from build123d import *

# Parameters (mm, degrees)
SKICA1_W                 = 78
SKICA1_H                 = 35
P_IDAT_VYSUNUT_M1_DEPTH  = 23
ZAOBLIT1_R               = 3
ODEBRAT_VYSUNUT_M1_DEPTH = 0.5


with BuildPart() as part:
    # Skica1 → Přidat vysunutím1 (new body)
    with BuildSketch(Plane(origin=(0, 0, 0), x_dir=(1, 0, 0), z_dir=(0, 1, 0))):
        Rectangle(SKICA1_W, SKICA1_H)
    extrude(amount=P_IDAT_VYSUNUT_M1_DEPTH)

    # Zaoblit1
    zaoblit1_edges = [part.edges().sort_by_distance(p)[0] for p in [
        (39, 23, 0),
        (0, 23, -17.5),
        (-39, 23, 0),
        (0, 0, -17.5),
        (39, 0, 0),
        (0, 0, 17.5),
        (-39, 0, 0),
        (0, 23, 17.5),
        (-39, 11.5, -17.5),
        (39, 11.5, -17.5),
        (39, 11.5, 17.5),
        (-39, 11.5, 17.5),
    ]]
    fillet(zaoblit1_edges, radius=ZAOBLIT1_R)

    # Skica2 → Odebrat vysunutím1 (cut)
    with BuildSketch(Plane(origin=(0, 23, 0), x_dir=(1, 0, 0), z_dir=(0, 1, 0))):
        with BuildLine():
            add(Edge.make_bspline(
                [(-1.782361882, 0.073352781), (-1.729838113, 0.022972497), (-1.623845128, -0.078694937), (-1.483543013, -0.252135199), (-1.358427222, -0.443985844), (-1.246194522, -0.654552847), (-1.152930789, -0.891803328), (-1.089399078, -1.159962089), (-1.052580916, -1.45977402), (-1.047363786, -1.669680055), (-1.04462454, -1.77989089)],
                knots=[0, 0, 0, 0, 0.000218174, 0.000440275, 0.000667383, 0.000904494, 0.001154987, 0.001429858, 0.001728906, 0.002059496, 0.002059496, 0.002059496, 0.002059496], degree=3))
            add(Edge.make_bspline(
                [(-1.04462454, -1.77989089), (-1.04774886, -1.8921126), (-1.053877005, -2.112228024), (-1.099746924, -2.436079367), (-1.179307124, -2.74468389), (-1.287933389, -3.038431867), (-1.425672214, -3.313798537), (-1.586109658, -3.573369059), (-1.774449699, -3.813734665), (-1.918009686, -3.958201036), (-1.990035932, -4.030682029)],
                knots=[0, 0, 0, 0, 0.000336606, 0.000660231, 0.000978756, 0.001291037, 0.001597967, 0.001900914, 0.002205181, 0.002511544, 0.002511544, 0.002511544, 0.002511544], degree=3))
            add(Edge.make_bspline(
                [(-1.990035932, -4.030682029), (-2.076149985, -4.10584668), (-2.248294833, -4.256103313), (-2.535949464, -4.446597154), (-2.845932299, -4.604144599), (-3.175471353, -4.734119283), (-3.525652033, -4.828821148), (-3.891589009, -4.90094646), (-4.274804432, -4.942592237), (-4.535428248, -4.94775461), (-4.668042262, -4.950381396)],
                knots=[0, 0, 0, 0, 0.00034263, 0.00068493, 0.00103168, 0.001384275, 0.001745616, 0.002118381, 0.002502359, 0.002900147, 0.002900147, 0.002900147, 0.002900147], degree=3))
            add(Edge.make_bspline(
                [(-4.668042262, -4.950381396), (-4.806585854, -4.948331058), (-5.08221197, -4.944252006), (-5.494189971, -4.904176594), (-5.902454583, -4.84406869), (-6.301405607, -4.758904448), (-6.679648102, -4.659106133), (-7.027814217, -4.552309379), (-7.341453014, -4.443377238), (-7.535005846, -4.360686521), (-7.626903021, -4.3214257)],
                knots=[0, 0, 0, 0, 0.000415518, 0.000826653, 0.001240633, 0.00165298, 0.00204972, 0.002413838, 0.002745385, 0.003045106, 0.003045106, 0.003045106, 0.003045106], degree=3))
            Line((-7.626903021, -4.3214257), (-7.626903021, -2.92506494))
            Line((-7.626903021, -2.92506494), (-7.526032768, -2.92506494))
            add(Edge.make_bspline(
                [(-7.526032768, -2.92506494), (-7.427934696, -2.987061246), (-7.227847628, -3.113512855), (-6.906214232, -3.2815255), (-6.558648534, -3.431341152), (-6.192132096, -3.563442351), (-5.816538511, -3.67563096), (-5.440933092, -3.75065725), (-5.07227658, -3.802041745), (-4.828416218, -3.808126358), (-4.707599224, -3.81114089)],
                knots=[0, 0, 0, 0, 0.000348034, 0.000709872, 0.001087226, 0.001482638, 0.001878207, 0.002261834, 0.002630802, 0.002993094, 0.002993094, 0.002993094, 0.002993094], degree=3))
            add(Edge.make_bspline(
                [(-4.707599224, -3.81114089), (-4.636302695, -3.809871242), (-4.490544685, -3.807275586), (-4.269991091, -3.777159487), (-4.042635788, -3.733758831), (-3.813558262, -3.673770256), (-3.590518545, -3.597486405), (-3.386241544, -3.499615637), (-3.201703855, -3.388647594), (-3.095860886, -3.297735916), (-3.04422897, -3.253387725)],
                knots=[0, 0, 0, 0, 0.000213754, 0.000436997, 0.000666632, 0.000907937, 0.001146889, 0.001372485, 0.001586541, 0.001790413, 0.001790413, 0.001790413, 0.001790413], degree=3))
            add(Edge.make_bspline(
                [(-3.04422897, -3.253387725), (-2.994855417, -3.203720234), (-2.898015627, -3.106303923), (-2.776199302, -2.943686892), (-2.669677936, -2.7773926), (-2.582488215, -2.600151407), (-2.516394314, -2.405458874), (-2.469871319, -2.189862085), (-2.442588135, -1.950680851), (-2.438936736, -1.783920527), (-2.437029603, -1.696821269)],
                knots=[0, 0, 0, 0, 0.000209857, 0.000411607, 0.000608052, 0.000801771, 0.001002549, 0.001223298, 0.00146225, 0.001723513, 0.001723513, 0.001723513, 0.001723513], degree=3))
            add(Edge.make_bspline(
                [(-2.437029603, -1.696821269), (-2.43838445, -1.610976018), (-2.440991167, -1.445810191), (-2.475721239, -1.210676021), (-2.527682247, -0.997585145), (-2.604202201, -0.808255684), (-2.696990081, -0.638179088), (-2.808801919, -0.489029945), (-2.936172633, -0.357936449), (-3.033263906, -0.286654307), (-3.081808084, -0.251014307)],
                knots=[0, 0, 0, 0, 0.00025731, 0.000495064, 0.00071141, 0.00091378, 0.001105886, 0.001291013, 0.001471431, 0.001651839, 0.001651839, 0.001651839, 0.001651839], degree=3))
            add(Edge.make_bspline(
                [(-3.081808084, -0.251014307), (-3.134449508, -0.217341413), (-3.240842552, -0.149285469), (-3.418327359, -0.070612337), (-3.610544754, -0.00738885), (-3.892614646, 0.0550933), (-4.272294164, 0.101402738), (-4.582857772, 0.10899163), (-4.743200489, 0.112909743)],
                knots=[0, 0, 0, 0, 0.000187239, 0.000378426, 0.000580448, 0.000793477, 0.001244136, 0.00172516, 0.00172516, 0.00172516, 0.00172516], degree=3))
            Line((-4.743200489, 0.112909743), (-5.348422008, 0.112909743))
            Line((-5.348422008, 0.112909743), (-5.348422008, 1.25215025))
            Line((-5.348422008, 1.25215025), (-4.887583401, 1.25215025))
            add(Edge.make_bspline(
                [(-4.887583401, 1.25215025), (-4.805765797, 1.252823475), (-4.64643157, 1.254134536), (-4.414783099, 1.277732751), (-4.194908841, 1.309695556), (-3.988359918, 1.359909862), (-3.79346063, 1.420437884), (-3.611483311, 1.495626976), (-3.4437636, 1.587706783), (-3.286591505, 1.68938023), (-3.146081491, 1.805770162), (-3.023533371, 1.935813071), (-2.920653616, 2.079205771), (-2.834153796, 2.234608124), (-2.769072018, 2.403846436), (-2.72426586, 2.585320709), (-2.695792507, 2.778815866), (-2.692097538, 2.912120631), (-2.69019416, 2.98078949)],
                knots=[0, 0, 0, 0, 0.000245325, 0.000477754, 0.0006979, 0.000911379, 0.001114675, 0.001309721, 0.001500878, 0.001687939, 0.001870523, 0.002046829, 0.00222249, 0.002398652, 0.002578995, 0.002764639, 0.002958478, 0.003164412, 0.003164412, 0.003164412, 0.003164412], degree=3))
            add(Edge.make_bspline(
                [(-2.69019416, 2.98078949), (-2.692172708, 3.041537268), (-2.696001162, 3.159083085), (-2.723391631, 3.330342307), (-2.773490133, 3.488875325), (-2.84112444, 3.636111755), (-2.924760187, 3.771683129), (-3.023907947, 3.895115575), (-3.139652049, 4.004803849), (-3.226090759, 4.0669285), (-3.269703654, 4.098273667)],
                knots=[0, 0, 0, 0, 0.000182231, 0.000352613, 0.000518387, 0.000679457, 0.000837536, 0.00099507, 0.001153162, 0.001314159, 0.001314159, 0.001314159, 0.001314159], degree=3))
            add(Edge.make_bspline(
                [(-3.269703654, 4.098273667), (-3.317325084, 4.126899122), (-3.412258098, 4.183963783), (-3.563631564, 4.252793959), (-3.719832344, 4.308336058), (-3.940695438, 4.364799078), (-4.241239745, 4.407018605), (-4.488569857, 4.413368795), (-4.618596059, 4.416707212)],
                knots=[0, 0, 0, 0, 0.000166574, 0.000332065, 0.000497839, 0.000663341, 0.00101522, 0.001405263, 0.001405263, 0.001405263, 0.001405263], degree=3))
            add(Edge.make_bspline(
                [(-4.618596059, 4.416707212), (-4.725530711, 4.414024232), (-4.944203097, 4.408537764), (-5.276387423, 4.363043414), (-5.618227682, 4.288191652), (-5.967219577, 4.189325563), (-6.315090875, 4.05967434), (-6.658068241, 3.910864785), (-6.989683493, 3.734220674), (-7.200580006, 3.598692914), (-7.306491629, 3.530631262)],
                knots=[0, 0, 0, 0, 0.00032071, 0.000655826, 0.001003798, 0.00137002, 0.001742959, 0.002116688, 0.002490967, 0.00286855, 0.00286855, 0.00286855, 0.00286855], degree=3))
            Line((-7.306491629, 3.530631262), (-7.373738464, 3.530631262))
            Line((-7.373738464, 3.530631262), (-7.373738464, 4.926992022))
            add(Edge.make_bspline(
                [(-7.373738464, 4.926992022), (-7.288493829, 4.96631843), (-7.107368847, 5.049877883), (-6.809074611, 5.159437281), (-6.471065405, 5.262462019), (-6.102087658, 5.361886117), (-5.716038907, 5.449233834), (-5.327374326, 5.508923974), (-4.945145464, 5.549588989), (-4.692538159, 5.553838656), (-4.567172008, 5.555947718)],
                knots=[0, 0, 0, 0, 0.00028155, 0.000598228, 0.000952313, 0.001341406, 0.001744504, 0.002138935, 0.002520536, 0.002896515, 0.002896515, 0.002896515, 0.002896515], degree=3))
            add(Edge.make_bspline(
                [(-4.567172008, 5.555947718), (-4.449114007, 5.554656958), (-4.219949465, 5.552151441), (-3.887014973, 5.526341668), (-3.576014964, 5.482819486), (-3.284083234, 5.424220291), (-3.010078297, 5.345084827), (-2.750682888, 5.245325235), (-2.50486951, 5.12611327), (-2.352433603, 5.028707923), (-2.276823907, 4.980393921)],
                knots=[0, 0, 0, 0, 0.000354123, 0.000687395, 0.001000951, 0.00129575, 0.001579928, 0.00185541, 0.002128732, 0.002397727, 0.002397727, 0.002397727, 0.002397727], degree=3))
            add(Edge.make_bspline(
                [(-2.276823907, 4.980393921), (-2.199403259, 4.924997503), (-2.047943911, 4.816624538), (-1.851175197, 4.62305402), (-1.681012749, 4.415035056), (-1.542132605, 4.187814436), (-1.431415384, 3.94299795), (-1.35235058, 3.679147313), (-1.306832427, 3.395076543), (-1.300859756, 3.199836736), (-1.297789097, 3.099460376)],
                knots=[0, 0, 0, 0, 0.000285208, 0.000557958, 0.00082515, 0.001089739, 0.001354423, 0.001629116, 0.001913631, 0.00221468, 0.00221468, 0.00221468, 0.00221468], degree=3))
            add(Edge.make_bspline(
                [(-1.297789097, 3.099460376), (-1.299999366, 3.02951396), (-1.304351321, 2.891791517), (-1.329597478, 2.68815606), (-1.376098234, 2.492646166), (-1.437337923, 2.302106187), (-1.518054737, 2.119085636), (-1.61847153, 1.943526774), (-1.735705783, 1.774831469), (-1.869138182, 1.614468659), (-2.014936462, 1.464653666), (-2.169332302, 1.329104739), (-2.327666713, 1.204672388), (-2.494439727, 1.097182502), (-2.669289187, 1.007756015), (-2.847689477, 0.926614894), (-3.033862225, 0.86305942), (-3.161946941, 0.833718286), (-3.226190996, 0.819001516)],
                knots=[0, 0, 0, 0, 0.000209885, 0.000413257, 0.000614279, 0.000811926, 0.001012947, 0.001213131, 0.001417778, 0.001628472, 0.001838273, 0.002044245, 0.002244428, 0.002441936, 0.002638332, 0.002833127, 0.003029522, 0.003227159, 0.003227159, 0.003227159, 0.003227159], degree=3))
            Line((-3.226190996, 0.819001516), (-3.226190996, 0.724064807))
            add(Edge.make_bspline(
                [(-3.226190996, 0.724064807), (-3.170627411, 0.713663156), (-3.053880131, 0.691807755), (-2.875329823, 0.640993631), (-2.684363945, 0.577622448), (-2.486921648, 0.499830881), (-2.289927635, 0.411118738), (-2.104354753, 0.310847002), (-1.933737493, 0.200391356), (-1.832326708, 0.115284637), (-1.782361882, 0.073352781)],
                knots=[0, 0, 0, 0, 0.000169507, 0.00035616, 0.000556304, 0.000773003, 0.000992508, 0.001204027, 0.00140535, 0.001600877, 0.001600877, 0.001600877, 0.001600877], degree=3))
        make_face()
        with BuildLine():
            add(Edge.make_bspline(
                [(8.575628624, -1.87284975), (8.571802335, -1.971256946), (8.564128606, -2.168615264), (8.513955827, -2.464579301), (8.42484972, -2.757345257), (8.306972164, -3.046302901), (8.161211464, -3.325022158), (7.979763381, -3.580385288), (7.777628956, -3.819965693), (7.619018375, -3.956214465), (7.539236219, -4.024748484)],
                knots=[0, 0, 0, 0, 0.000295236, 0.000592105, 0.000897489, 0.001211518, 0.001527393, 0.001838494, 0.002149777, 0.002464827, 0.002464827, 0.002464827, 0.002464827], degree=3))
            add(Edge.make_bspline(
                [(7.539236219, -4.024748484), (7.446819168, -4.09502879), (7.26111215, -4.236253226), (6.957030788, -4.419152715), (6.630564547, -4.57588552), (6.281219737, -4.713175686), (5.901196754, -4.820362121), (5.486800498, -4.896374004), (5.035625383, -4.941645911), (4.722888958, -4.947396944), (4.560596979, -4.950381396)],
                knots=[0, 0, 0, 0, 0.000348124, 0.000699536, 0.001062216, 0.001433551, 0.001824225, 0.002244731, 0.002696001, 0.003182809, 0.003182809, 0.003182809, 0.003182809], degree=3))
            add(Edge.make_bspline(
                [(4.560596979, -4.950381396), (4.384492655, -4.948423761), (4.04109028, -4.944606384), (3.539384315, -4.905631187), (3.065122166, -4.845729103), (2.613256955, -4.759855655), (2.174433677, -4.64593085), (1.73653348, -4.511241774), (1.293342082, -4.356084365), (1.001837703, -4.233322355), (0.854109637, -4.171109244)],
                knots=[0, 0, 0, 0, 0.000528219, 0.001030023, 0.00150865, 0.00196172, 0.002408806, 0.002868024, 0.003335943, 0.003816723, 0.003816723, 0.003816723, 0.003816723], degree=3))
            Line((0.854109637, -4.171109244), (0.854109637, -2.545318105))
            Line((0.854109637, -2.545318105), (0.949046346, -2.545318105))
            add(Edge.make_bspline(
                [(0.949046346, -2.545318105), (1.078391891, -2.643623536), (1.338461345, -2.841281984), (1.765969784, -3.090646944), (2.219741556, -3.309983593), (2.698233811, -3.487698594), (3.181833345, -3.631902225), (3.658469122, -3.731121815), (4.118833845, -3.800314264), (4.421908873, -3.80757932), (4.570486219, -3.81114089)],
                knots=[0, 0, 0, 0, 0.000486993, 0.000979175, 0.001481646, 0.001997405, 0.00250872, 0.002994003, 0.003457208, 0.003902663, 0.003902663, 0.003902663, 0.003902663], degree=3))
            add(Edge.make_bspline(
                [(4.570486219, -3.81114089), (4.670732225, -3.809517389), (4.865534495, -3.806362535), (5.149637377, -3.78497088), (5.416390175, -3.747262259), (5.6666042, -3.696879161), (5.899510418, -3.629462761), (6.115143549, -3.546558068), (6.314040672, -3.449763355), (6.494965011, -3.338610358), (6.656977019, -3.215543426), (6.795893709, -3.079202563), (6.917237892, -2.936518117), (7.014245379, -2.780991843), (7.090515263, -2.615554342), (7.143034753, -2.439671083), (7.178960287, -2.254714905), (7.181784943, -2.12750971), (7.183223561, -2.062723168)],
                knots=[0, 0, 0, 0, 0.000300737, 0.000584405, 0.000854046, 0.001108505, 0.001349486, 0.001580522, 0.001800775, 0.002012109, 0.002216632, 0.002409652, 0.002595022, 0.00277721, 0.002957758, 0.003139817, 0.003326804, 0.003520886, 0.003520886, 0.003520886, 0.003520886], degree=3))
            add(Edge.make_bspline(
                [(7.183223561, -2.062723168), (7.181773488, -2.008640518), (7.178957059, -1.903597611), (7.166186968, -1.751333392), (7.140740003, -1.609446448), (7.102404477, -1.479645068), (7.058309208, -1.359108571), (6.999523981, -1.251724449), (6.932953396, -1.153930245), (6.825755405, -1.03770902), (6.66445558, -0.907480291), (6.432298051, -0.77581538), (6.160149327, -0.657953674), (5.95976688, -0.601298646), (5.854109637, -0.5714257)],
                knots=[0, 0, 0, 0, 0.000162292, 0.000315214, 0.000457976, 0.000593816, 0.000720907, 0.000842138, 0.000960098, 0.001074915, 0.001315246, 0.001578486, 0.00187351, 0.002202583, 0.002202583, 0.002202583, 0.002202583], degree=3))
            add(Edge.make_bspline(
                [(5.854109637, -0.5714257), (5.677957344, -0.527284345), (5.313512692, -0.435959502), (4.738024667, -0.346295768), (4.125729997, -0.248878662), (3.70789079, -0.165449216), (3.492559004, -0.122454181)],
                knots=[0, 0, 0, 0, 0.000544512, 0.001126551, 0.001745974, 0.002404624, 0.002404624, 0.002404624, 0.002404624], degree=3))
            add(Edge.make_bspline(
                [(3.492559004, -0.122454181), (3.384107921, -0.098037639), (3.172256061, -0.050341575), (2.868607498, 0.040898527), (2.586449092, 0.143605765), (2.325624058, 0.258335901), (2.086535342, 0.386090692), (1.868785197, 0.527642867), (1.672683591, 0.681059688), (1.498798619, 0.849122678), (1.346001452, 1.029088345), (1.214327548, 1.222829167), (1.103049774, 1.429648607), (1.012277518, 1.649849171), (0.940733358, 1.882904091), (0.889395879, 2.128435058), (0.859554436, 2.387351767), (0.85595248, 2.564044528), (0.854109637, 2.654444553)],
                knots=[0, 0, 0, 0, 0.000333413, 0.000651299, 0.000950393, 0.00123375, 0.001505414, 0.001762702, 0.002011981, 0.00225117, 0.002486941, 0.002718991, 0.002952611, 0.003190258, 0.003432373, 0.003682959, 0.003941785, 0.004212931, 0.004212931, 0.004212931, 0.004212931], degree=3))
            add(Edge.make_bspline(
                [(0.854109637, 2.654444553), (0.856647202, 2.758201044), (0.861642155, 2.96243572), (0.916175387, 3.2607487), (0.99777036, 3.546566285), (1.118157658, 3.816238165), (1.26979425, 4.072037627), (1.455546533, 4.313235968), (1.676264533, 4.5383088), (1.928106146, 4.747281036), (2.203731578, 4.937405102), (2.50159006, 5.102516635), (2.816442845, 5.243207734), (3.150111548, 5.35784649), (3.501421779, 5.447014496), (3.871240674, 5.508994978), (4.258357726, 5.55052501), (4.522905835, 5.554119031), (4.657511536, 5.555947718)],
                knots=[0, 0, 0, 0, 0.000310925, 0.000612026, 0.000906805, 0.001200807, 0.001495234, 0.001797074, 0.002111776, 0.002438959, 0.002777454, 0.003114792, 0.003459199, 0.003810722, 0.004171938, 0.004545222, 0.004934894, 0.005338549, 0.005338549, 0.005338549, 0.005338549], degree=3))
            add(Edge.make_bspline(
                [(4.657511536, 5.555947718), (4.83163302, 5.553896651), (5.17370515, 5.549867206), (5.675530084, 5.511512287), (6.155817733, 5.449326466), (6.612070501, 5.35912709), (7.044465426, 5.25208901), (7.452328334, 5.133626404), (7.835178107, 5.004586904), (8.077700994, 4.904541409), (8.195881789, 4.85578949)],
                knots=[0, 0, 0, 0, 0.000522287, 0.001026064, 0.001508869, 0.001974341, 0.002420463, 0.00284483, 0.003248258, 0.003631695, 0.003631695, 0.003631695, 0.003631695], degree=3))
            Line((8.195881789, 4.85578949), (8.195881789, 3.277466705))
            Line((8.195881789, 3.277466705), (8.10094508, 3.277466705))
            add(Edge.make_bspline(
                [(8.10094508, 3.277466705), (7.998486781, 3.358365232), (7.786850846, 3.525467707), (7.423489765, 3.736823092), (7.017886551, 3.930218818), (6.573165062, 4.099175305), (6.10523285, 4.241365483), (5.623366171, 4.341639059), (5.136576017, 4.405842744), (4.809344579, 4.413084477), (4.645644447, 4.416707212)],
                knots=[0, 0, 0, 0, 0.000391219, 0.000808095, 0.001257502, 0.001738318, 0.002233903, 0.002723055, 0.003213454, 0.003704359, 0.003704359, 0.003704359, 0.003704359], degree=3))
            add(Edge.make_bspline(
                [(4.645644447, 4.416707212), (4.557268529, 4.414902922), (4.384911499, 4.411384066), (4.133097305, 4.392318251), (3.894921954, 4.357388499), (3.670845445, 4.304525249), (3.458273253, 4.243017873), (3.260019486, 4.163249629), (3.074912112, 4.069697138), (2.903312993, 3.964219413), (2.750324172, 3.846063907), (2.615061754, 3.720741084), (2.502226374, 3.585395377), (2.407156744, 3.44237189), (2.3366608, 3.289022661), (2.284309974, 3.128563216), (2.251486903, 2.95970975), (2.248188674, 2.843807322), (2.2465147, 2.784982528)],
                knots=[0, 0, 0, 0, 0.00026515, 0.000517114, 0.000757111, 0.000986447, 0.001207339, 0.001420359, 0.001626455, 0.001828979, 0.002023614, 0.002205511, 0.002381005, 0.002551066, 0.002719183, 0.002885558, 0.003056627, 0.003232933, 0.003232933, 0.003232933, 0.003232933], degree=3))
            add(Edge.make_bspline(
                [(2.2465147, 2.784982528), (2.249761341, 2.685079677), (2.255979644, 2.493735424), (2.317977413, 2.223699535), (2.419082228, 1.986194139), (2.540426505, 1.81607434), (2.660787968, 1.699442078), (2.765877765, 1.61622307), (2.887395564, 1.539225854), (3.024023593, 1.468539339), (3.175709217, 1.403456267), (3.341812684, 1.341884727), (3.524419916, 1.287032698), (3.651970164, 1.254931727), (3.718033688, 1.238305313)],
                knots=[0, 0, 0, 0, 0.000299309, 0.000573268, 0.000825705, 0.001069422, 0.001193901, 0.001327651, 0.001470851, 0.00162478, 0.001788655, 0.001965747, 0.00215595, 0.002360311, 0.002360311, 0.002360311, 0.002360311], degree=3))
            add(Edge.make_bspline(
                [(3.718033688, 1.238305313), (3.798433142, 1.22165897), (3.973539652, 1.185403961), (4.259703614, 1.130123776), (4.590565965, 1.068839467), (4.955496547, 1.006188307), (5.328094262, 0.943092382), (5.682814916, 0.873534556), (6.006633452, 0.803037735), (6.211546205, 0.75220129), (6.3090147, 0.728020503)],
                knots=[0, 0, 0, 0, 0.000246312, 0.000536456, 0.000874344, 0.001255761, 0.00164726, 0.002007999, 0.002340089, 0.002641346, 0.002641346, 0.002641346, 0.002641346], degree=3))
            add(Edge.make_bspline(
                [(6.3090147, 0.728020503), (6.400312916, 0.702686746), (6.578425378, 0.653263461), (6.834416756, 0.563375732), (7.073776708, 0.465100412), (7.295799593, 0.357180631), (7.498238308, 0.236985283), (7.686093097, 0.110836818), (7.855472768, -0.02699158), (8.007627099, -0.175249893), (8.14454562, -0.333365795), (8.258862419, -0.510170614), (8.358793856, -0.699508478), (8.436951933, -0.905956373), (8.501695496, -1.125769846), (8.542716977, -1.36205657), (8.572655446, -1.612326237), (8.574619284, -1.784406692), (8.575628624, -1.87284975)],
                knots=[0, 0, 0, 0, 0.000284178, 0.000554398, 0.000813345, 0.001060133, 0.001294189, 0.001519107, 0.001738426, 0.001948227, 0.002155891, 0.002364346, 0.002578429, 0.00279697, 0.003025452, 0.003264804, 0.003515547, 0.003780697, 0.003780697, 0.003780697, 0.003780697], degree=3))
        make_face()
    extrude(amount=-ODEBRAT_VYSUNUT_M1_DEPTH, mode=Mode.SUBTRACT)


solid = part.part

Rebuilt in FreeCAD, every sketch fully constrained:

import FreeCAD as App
import Part
import Sketcher
from FreeCAD import Vector
Q = App.Units.Quantity

doc = App.newDocument("Part")
params = doc.addObject("Spreadsheet::Sheet", "Params")
for row, (alias, value) in enumerate([
    ("sketch1_width", "78 mm"),
    ("sketch1_height", "35 mm"),
    ("pad1_length", "23 mm"),
    ("fillet_radius", "3 mm"),
    ("pocket1_length", "0.5 mm"),
], start=1):
    params.set(f"A{row}", alias)
    params.set(f"B{row}", "=" + value)
    params.setAlias(f"B{row}", alias)

body = doc.addObject("PartDesign::Body", "Body")

# Sketch on XZ plane
sketch1 = doc.addObject("Sketcher::SketchObject", "Sketch")
body.addObject(sketch1)
sketch1.AttachmentSupport = (doc.XZ_Plane, [""])
sketch1.MapMode = "FlatFace"
sketch1.addGeometry(Part.LineSegment(Vector(-39, -17.5, 0), Vector(-39, 17.5, 0)), False)
sketch1.addGeometry(Part.LineSegment(Vector(-39, 17.5, 0), Vector(39, 17.5, 0)), False)
sketch1.addGeometry(Part.LineSegment(Vector(39, 17.5, 0), Vector(39, -17.5, 0)), False)
sketch1.addGeometry(Part.LineSegment(Vector(39, -17.5, 0), Vector(-39, -17.5, 0)), False)
sketch1.addConstraint(Sketcher.Constraint("Coincident", 0, 2, 1, 1))
sketch1.addConstraint(Sketcher.Constraint("Coincident", 1, 2, 2, 1))
sketch1.addConstraint(Sketcher.Constraint("Coincident", 2, 2, 3, 1))
sketch1.addConstraint(Sketcher.Constraint("Coincident", 3, 2, 0, 1))
sketch1.addConstraint(Sketcher.Constraint("Vertical", 0))
sketch1.addConstraint(Sketcher.Constraint("Horizontal", 1))
sketch1.addConstraint(Sketcher.Constraint("Vertical", 2))
sketch1.addConstraint(Sketcher.Constraint("Horizontal", 3))
sketch1.addConstraint(Sketcher.Constraint("Symmetric", 0, 2, 2, 2, -1, 1))
sketch1.addConstraint(Sketcher.Constraint("DistanceX", 1, 1, 1, 2, Q("78 mm")))
sketch1.addConstraint(Sketcher.Constraint("DistanceY", 0, 1, 0, 2, Q("35 mm")))
sketch1.setExpression("Constraints[9]", "Params.sketch1_width")
sketch1.setExpression("Constraints[10]", "Params.sketch1_height")
pad1 = doc.addObject("PartDesign::Pad", "Pad")
body.addObject(pad1)
pad1.Profile = sketch1
pad1.setExpression("Length", "Params.pad1_length")
pad1.Reversed = True
doc.recompute()

fillet = doc.addObject("PartDesign::Fillet", "Fillet")
body.addObject(fillet)
fillet.Base = (pad1, ["Edge1"])
fillet.UseAllEdges = True
fillet.setExpression("Radius", "Params.fillet_radius")

# Sketch on XZ plane
sketch2 = doc.addObject("Sketcher::SketchObject", "Sketch001")
body.addObject(sketch2)
sketch2.AttachmentSupport = (doc.XZ_Plane, [""])
sketch2.MapMode = "FlatFace"
sketch2.AttachmentOffset = App.Placement(Vector(0, 0, -23), App.Rotation())
sketch2.addGeometry(Part.BSplineCurve([Vector(-1.782362, -0.073353, 0), Vector(-1.729838, -0.022972, 0), Vector(-1.623845, 0.078695, 0), Vector(-1.483543, 0.252135, 0), Vector(-1.358427, 0.443986, 0), Vector(-1.246195, 0.654553, 0), Vector(-1.152931, 0.891803, 0), Vector(-1.089399, 1.159962, 0), Vector(-1.052581, 1.459774, 0), Vector(-1.047364, 1.66968, 0), Vector(-1.044625, 1.779891, 0)], [4, 1, 1, 1, 1, 1, 1, 1, 4], [0, 0.000218174, 0.000440275, 0.000667383, 0.000904494, 0.001154987, 0.001429858, 0.001728906, 0.002059496], False, 3, [1, 1, 1, 1, 1, 1, 1, 1, 1, 1, 1], False), False)
sketch2.addGeometry(Part.BSplineCurve([Vector(-3.226191, -0.724065, 0), Vector(-3.170627, -0.713663, 0), Vector(-3.05388, -0.691808, 0), Vector(-2.87533, -0.640994, 0), Vector(-2.684364, -0.577622, 0), Vector(-2.486922, -0.499831, 0), Vector(-2.289928, -0.411119, 0), Vector(-2.104355, -0.310847, 0), Vector(-1.933737, -0.200391, 0), Vector(-1.832327, -0.115285, 0), Vector(-1.782362, -0.073353, 0)], [4, 1, 1, 1, 1, 1, 1, 1, 4], [0, 0.000169507, 0.00035616, 0.000556304, 0.000773003, 0.000992508, 0.001204027, 0.00140535, 0.001600877], False, 3, [1, 1, 1, 1, 1, 1, 1, 1, 1, 1, 1], False), False)
sketch2.addGeometry(Part.LineSegment(Vector(-3.226191, -0.724065, 0), Vector(-3.226191, -0.819002, 0)), False)
sketch2.addGeometry(Part.BSplineCurve([Vector(-1.297789, -3.09946, 0), Vector(-1.299999, -3.029514, 0), Vector(-1.304351, -2.891792, 0), Vector(-1.329597, -2.688156, 0), Vector(-1.376098, -2.492646, 0), Vector(-1.437338, -2.302106, 0), Vector(-1.518055, -2.119086, 0), Vector(-1.618472, -1.943527, 0), Vector(-1.735706, -1.774831, 0), Vector(-1.869138, -1.614469, 0), Vector(-2.014936, -1.464654, 0), Vector(-2.169332, -1.329105, 0), Vector(-2.327667, -1.204672, 0), Vector(-2.49444, -1.097183, 0), Vector(-2.669289, -1.007756, 0), Vector(-2.847689, -0.926615, 0), Vector(-3.033862, -0.863059, 0), Vector(-3.161947, -0.833718, 0), Vector(-3.226191, -0.819002, 0)], [4, 1, 1, 1, 1, 1, 1, 1, 1, 1, 1, 1, 1, 1, 1, 1, 4], [0, 0.000209885, 0.000413257, 0.000614279, 0.000811926, 0.001012947, 0.001213131, 0.001417778, 0.001628472, 0.001838273, 0.002044245, 0.002244428, 0.002441936, 0.002638332, 0.002833127, 0.003029522, 0.003227159], False, 3, [1, 1, 1, 1, 1, 1, 1, 1, 1, 1, 1, 1, 1, 1, 1, 1, 1, 1, 1], False), False)
sketch2.addGeometry(Part.BSplineCurve([Vector(-2.276824, -4.980394, 0), Vector(-2.199403, -4.924998, 0), Vector(-2.047944, -4.816625, 0), Vector(-1.851175, -4.623054, 0), Vector(-1.681013, -4.415035, 0), Vector(-1.542133, -4.187814, 0), Vector(-1.431415, -3.942998, 0), Vector(-1.352351, -3.679147, 0), Vector(-1.306832, -3.395077, 0), Vector(-1.30086, -3.199837, 0), Vector(-1.297789, -3.09946, 0)], [4, 1, 1, 1, 1, 1, 1, 1, 4], [0, 0.000285208, 0.000557958, 0.00082515, 0.001089739, 0.001354423, 0.001629116, 0.001913631, 0.00221468], False, 3, [1, 1, 1, 1, 1, 1, 1, 1, 1, 1, 1], False), False)
sketch2.addGeometry(Part.BSplineCurve([Vector(-4.567172, -5.555948, 0), Vector(-4.449114, -5.554657, 0), Vector(-4.219949, -5.552151, 0), Vector(-3.887015, -5.526342, 0), Vector(-3.576015, -5.482819, 0), Vector(-3.284083, -5.42422, 0), Vector(-3.010078, -5.345085, 0), Vector(-2.750683, -5.245325, 0), Vector(-2.50487, -5.126113, 0), Vector(-2.352434, -5.028708, 0), Vector(-2.276824, -4.980394, 0)], [4, 1, 1, 1, 1, 1, 1, 1, 4], [0, 0.000354123, 0.000687395, 0.001000951, 0.00129575, 0.001579928, 0.00185541, 0.002128732, 0.002397727], False, 3, [1, 1, 1, 1, 1, 1, 1, 1, 1, 1, 1], False), False)
sketch2.addGeometry(Part.BSplineCurve([Vector(-7.373738, -4.926992, 0), Vector(-7.288494, -4.966318, 0), Vector(-7.107369, -5.049878, 0), Vector(-6.809075, -5.159437, 0), Vector(-6.471065, -5.262462, 0), Vector(-6.102088, -5.361886, 0), Vector(-5.716039, -5.449234, 0), Vector(-5.327374, -5.508924, 0), Vector(-4.945145, -5.549589, 0), Vector(-4.692538, -5.553839, 0), Vector(-4.567172, -5.555948, 0)], [4, 1, 1, 1, 1, 1, 1, 1, 4], [0, 0.00028155, 0.000598228, 0.000952313, 0.001341406, 0.001744504, 0.002138935, 0.002520536, 0.002896515], False, 3, [1, 1, 1, 1, 1, 1, 1, 1, 1, 1, 1], False), False)
sketch2.addGeometry(Part.LineSegment(Vector(-7.373738, -4.926992, 0), Vector(-7.373738, -3.530631, 0)), False)
sketch2.addGeometry(Part.LineSegment(Vector(-7.373738, -3.530631, 0), Vector(-7.306492, -3.530631, 0)), False)
sketch2.addGeometry(Part.BSplineCurve([Vector(-4.618596, -4.416707, 0), Vector(-4.725531, -4.414024, 0), Vector(-4.944203, -4.408538, 0), Vector(-5.276387, -4.363043, 0), Vector(-5.618228, -4.288192, 0), Vector(-5.96722, -4.189326, 0), Vector(-6.315091, -4.059674, 0), Vector(-6.658068, -3.910865, 0), Vector(-6.989683, -3.734221, 0), Vector(-7.20058, -3.598693, 0), Vector(-7.306492, -3.530631, 0)], [4, 1, 1, 1, 1, 1, 1, 1, 4], [0, 0.00032071, 0.000655826, 0.001003798, 0.00137002, 0.001742959, 0.002116688, 0.002490967, 0.00286855], False, 3, [1, 1, 1, 1, 1, 1, 1, 1, 1, 1, 1], False), False)
sketch2.addGeometry(Part.BSplineCurve([Vector(-3.269704, -4.098274, 0), Vector(-3.317325, -4.126899, 0), Vector(-3.412258, -4.183964, 0), Vector(-3.563632, -4.252794, 0), Vector(-3.719832, -4.308336, 0), Vector(-3.940695, -4.364799, 0), Vector(-4.24124, -4.407019, 0), Vector(-4.48857, -4.413369, 0), Vector(-4.618596, -4.416707, 0)], [4, 1, 1, 1, 1, 1, 4], [0, 0.000166574, 0.000332065, 0.000497839, 0.000663341, 0.00101522, 0.001405263], False, 3, [1, 1, 1, 1, 1, 1, 1, 1, 1], False), False)
sketch2.addGeometry(Part.BSplineCurve([Vector(-2.690194, -2.980789, 0), Vector(-2.692173, -3.041537, 0), Vector(-2.696001, -3.159083, 0), Vector(-2.723392, -3.330342, 0), Vector(-2.77349, -3.488875, 0), Vector(-2.841124, -3.636112, 0), Vector(-2.92476, -3.771683, 0), Vector(-3.023908, -3.895116, 0), Vector(-3.139652, -4.004804, 0), Vector(-3.226091, -4.066929, 0), Vector(-3.269704, -4.098274, 0)], [4, 1, 1, 1, 1, 1, 1, 1, 4], [0, 0.000182231, 0.000352613, 0.000518387, 0.000679457, 0.000837536, 0.00099507, 0.001153162, 0.001314159], False, 3, [1, 1, 1, 1, 1, 1, 1, 1, 1, 1, 1], False), False)
sketch2.addGeometry(Part.BSplineCurve([Vector(-4.887583, -1.25215, 0), Vector(-4.805766, -1.252823, 0), Vector(-4.646432, -1.254135, 0), Vector(-4.414783, -1.277733, 0), Vector(-4.194909, -1.309696, 0), Vector(-3.98836, -1.35991, 0), Vector(-3.793461, -1.420438, 0), Vector(-3.611483, -1.495627, 0), Vector(-3.443764, -1.587707, 0), Vector(-3.286592, -1.68938, 0), Vector(-3.146081, -1.80577, 0), Vector(-3.023533, -1.935813, 0), Vector(-2.920654, -2.079206, 0), Vector(-2.834154, -2.234608, 0), Vector(-2.769072, -2.403846, 0), Vector(-2.724266, -2.585321, 0), Vector(-2.695793, -2.778816, 0), Vector(-2.692098, -2.912121, 0), Vector(-2.690194, -2.980789, 0)], [4, 1, 1, 1, 1, 1, 1, 1, 1, 1, 1, 1, 1, 1, 1, 1, 4], [0, 0.000245325, 0.000477754, 0.0006979, 0.000911379, 0.001114675, 0.001309721, 0.001500878, 0.001687939, 0.001870523, 0.002046829, 0.00222249, 0.002398652, 0.002578995, 0.002764639, 0.002958478, 0.003164412], False, 3, [1, 1, 1, 1, 1, 1, 1, 1, 1, 1, 1, 1, 1, 1, 1, 1, 1, 1, 1], False), False)
sketch2.addGeometry(Part.LineSegment(Vector(-4.887583, -1.25215, 0), Vector(-5.348422, -1.25215, 0)), False)
sketch2.addGeometry(Part.LineSegment(Vector(-5.348422, -1.25215, 0), Vector(-5.348422, -0.11291, 0)), False)
sketch2.addGeometry(Part.LineSegment(Vector(-5.348422, -0.11291, 0), Vector(-4.7432, -0.11291, 0)), False)
sketch2.addGeometry(Part.BSplineCurve([Vector(-3.081808, 0.251014, 0), Vector(-3.13445, 0.217341, 0), Vector(-3.240843, 0.149285, 0), Vector(-3.418327, 0.070612, 0), Vector(-3.610545, 0.007389, 0), Vector(-3.892615, -0.055093, 0), Vector(-4.272294, -0.101403, 0), Vector(-4.582858, -0.108992, 0), Vector(-4.7432, -0.11291, 0)], [4, 1, 1, 1, 1, 1, 4], [0, 0.000187239, 0.000378426, 0.000580448, 0.000793477, 0.001244136, 0.00172516], False, 3, [1, 1, 1, 1, 1, 1, 1, 1, 1], False), False)
sketch2.addGeometry(Part.BSplineCurve([Vector(-2.43703, 1.696821, 0), Vector(-2.438384, 1.610976, 0), Vector(-2.440991, 1.44581, 0), Vector(-2.475721, 1.210676, 0), Vector(-2.527682, 0.997585, 0), Vector(-2.604202, 0.808256, 0), Vector(-2.69699, 0.638179, 0), Vector(-2.808802, 0.48903, 0), Vector(-2.936173, 0.357936, 0), Vector(-3.033264, 0.286654, 0), Vector(-3.081808, 0.251014, 0)], [4, 1, 1, 1, 1, 1, 1, 1, 4], [0, 0.00025731, 0.000495064, 0.00071141, 0.00091378, 0.001105886, 0.001291013, 0.001471431, 0.001651839], False, 3, [1, 1, 1, 1, 1, 1, 1, 1, 1, 1, 1], False), False)
sketch2.addGeometry(Part.BSplineCurve([Vector(-3.044229, 3.253388, 0), Vector(-2.994855, 3.20372, 0), Vector(-2.898016, 3.106304, 0), Vector(-2.776199, 2.943687, 0), Vector(-2.669678, 2.777393, 0), Vector(-2.582488, 2.600151, 0), Vector(-2.516394, 2.405459, 0), Vector(-2.469871, 2.189862, 0), Vector(-2.442588, 1.950681, 0), Vector(-2.438937, 1.783921, 0), Vector(-2.43703, 1.696821, 0)], [4, 1, 1, 1, 1, 1, 1, 1, 4], [0, 0.000209857, 0.000411607, 0.000608052, 0.000801771, 0.001002549, 0.001223298, 0.00146225, 0.001723513], False, 3, [1, 1, 1, 1, 1, 1, 1, 1, 1, 1, 1], False), False)
sketch2.addGeometry(Part.BSplineCurve([Vector(-4.707599, 3.811141, 0), Vector(-4.636303, 3.809871, 0), Vector(-4.490545, 3.807276, 0), Vector(-4.269991, 3.777159, 0), Vector(-4.042636, 3.733759, 0), Vector(-3.813558, 3.67377, 0), Vector(-3.590519, 3.597486, 0), Vector(-3.386242, 3.499616, 0), Vector(-3.201704, 3.388648, 0), Vector(-3.095861, 3.297736, 0), Vector(-3.044229, 3.253388, 0)], [4, 1, 1, 1, 1, 1, 1, 1, 4], [0, 0.000213754, 0.000436997, 0.000666632, 0.000907937, 0.001146889, 0.001372485, 0.001586541, 0.001790413], False, 3, [1, 1, 1, 1, 1, 1, 1, 1, 1, 1, 1], False), False)
sketch2.addGeometry(Part.BSplineCurve([Vector(-7.526033, 2.925065, 0), Vector(-7.427935, 2.987061, 0), Vector(-7.227848, 3.113513, 0), Vector(-6.906214, 3.281525, 0), Vector(-6.558649, 3.431341, 0), Vector(-6.192132, 3.563442, 0), Vector(-5.816539, 3.675631, 0), Vector(-5.440933, 3.750657, 0), Vector(-5.072277, 3.802042, 0), Vector(-4.828416, 3.808126, 0), Vector(-4.707599, 3.811141, 0)], [4, 1, 1, 1, 1, 1, 1, 1, 4], [0, 0.000348034, 0.000709872, 0.001087226, 0.001482638, 0.001878207, 0.002261834, 0.002630802, 0.002993094], False, 3, [1, 1, 1, 1, 1, 1, 1, 1, 1, 1, 1], False), False)
sketch2.addGeometry(Part.LineSegment(Vector(-7.526033, 2.925065, 0), Vector(-7.626903, 2.925065, 0)), False)
sketch2.addGeometry(Part.LineSegment(Vector(-7.626903, 2.925065, 0), Vector(-7.626903, 4.321426, 0)), False)
sketch2.addGeometry(Part.BSplineCurve([Vector(-4.668042, 4.950381, 0), Vector(-4.806586, 4.948331, 0), Vector(-5.082212, 4.944252, 0), Vector(-5.49419, 4.904177, 0), Vector(-5.902455, 4.844069, 0), Vector(-6.301406, 4.758904, 0), Vector(-6.679648, 4.659106, 0), Vector(-7.027814, 4.552309, 0), Vector(-7.341453, 4.443377, 0), Vector(-7.535006, 4.360687, 0), Vector(-7.626903, 4.321426, 0)], [4, 1, 1, 1, 1, 1, 1, 1, 4], [0, 0.000415518, 0.000826653, 0.001240633, 0.00165298, 0.00204972, 0.002413838, 0.002745385, 0.003045106], False, 3, [1, 1, 1, 1, 1, 1, 1, 1, 1, 1, 1], False), False)
sketch2.addGeometry(Part.BSplineCurve([Vector(-1.990036, 4.030682, 0), Vector(-2.07615, 4.105847, 0), Vector(-2.248295, 4.256103, 0), Vector(-2.535949, 4.446597, 0), Vector(-2.845932, 4.604145, 0), Vector(-3.175471, 4.734119, 0), Vector(-3.525652, 4.828821, 0), Vector(-3.891589, 4.900946, 0), Vector(-4.274804, 4.942592, 0), Vector(-4.535428, 4.947755, 0), Vector(-4.668042, 4.950381, 0)], [4, 1, 1, 1, 1, 1, 1, 1, 4], [0, 0.00034263, 0.00068493, 0.00103168, 0.001384275, 0.001745616, 0.002118381, 0.002502359, 0.002900147], False, 3, [1, 1, 1, 1, 1, 1, 1, 1, 1, 1, 1], False), False)
sketch2.addGeometry(Part.BSplineCurve([Vector(-1.044625, 1.779891, 0), Vector(-1.047749, 1.892113, 0), Vector(-1.053877, 2.112228, 0), Vector(-1.099747, 2.436079, 0), Vector(-1.179307, 2.744684, 0), Vector(-1.287933, 3.038432, 0), Vector(-1.425672, 3.313799, 0), Vector(-1.58611, 3.573369, 0), Vector(-1.77445, 3.813735, 0), Vector(-1.91801, 3.958201, 0), Vector(-1.990036, 4.030682, 0)], [4, 1, 1, 1, 1, 1, 1, 1, 4], [0, 0.000336606, 0.000660231, 0.000978756, 0.001291037, 0.001597967, 0.001900914, 0.002205181, 0.002511544], False, 3, [1, 1, 1, 1, 1, 1, 1, 1, 1, 1, 1], False), False)
sketch2.addGeometry(Part.BSplineCurve([Vector(8.575629, 1.87285, 0), Vector(8.571802, 1.971257, 0), Vector(8.564129, 2.168615, 0), Vector(8.513956, 2.464579, 0), Vector(8.42485, 2.757345, 0), Vector(8.306972, 3.046303, 0), Vector(8.161211, 3.325022, 0), Vector(7.979763, 3.580385, 0), Vector(7.777629, 3.819966, 0), Vector(7.619018, 3.956214, 0), Vector(7.539236, 4.024748, 0)], [4, 1, 1, 1, 1, 1, 1, 1, 4], [0, 0.000295236, 0.000592105, 0.000897489, 0.001211518, 0.001527393, 0.001838494, 0.002149777, 0.002464827], False, 3, [1, 1, 1, 1, 1, 1, 1, 1, 1, 1, 1], False), False)
sketch2.addGeometry(Part.BSplineCurve([Vector(6.309015, -0.728021, 0), Vector(6.400313, -0.702687, 0), Vector(6.578425, -0.653263, 0), Vector(6.834417, -0.563376, 0), Vector(7.073777, -0.4651, 0), Vector(7.2958, -0.357181, 0), Vector(7.498238, -0.236985, 0), Vector(7.686093, -0.110837, 0), Vector(7.855473, 0.026992, 0), Vector(8.007627, 0.17525, 0), Vector(8.144546, 0.333366, 0), Vector(8.258862, 0.510171, 0), Vector(8.358794, 0.699508, 0), Vector(8.436952, 0.905956, 0), Vector(8.501695, 1.12577, 0), Vector(8.542717, 1.362057, 0), Vector(8.572655, 1.612326, 0), Vector(8.574619, 1.784407, 0), Vector(8.575629, 1.87285, 0)], [4, 1, 1, 1, 1, 1, 1, 1, 1, 1, 1, 1, 1, 1, 1, 1, 4], [0, 0.000284178, 0.000554398, 0.000813345, 0.001060133, 0.001294189, 0.001519107, 0.001738426, 0.001948227, 0.002155891, 0.002364346, 0.002578429, 0.00279697, 0.003025452, 0.003264804, 0.003515547, 0.003780697], False, 3, [1, 1, 1, 1, 1, 1, 1, 1, 1, 1, 1, 1, 1, 1, 1, 1, 1, 1, 1], False), False)
sketch2.addGeometry(Part.BSplineCurve([Vector(3.718034, -1.238305, 0), Vector(3.798433, -1.221659, 0), Vector(3.97354, -1.185404, 0), Vector(4.259704, -1.130124, 0), Vector(4.590566, -1.068839, 0), Vector(4.955497, -1.006188, 0), Vector(5.328094, -0.943092, 0), Vector(5.682815, -0.873535, 0), Vector(6.006633, -0.803038, 0), Vector(6.211546, -0.752201, 0), Vector(6.309015, -0.728021, 0)], [4, 1, 1, 1, 1, 1, 1, 1, 4], [0, 0.000246312, 0.000536456, 0.000874344, 0.001255761, 0.00164726, 0.002007999, 0.002340089, 0.002641346], False, 3, [1, 1, 1, 1, 1, 1, 1, 1, 1, 1, 1], False), False)
sketch2.addGeometry(Part.BSplineCurve([Vector(2.246515, -2.784983, 0), Vector(2.249761, -2.68508, 0), Vector(2.25598, -2.493735, 0), Vector(2.317977, -2.2237, 0), Vector(2.419082, -1.986194, 0), Vector(2.540427, -1.816074, 0), Vector(2.660788, -1.699442, 0), Vector(2.765878, -1.616223, 0), Vector(2.887396, -1.539226, 0), Vector(3.024024, -1.468539, 0), Vector(3.175709, -1.403456, 0), Vector(3.341813, -1.341885, 0), Vector(3.52442, -1.287033, 0), Vector(3.65197, -1.254932, 0), Vector(3.718034, -1.238305, 0)], [4, 1, 1, 1, 1, 1, 1, 1, 1, 1, 1, 1, 4], [0, 0.000299309, 0.000573268, 0.000825705, 0.001069422, 0.001193901, 0.001327651, 0.001470851, 0.00162478, 0.001788655, 0.001965747, 0.00215595, 0.002360311], False, 3, [1, 1, 1, 1, 1, 1, 1, 1, 1, 1, 1, 1, 1, 1, 1], False), False)
sketch2.addGeometry(Part.BSplineCurve([Vector(4.645644, -4.416707, 0), Vector(4.557269, -4.414903, 0), Vector(4.384911, -4.411384, 0), Vector(4.133097, -4.392318, 0), Vector(3.894922, -4.357388, 0), Vector(3.670845, -4.304525, 0), Vector(3.458273, -4.243018, 0), Vector(3.260019, -4.16325, 0), Vector(3.074912, -4.069697, 0), Vector(2.903313, -3.964219, 0), Vector(2.750324, -3.846064, 0), Vector(2.615062, -3.720741, 0), Vector(2.502226, -3.585395, 0), Vector(2.407157, -3.442372, 0), Vector(2.336661, -3.289023, 0), Vector(2.28431, -3.128563, 0), Vector(2.251487, -2.95971, 0), Vector(2.248189, -2.843807, 0), Vector(2.246515, -2.784983, 0)], [4, 1, 1, 1, 1, 1, 1, 1, 1, 1, 1, 1, 1, 1, 1, 1, 4], [0, 0.00026515, 0.000517114, 0.000757111, 0.000986447, 0.001207339, 0.001420359, 0.001626455, 0.001828979, 0.002023614, 0.002205511, 0.002381005, 0.002551066, 0.002719183, 0.002885558, 0.003056627, 0.003232933], False, 3, [1, 1, 1, 1, 1, 1, 1, 1, 1, 1, 1, 1, 1, 1, 1, 1, 1, 1, 1], False), False)
sketch2.addGeometry(Part.BSplineCurve([Vector(8.100945, -3.277467, 0), Vector(7.998487, -3.358365, 0), Vector(7.786851, -3.525468, 0), Vector(7.42349, -3.736823, 0), Vector(7.017887, -3.930219, 0), Vector(6.573165, -4.099175, 0), Vector(6.105233, -4.241365, 0), Vector(5.623366, -4.341639, 0), Vector(5.136576, -4.405843, 0), Vector(4.809345, -4.413084, 0), Vector(4.645644, -4.416707, 0)], [4, 1, 1, 1, 1, 1, 1, 1, 4], [0, 0.000391219, 0.000808095, 0.001257502, 0.001738318, 0.002233903, 0.002723055, 0.003213454, 0.003704359], False, 3, [1, 1, 1, 1, 1, 1, 1, 1, 1, 1, 1], False), False)
sketch2.addGeometry(Part.LineSegment(Vector(8.100945, -3.277467, 0), Vector(8.195882, -3.277467, 0)), False)
sketch2.addGeometry(Part.LineSegment(Vector(8.195882, -3.277467, 0), Vector(8.195882, -4.855789, 0)), False)
sketch2.addGeometry(Part.BSplineCurve([Vector(4.657512, -5.555948, 0), Vector(4.831633, -5.553897, 0), Vector(5.173705, -5.549867, 0), Vector(5.67553, -5.511512, 0), Vector(6.155818, -5.449326, 0), Vector(6.612071, -5.359127, 0), Vector(7.044465, -5.252089, 0), Vector(7.452328, -5.133626, 0), Vector(7.835178, -5.004587, 0), Vector(8.077701, -4.904541, 0), Vector(8.195882, -4.855789, 0)], [4, 1, 1, 1, 1, 1, 1, 1, 4], [0, 0.000522287, 0.001026064, 0.001508869, 0.001974341, 0.002420463, 0.00284483, 0.003248258, 0.003631695], False, 3, [1, 1, 1, 1, 1, 1, 1, 1, 1, 1, 1], False), False)
sketch2.addGeometry(Part.BSplineCurve([Vector(0.85411, -2.654445, 0), Vector(0.856647, -2.758201, 0), Vector(0.861642, -2.962436, 0), Vector(0.916175, -3.260749, 0), Vector(0.99777, -3.546566, 0), Vector(1.118158, -3.816238, 0), Vector(1.269794, -4.072038, 0), Vector(1.455547, -4.313236, 0), Vector(1.676265, -4.538309, 0), Vector(1.928106, -4.747281, 0), Vector(2.203732, -4.937405, 0), Vector(2.50159, -5.102517, 0), Vector(2.816443, -5.243208, 0), Vector(3.150112, -5.357846, 0), Vector(3.501422, -5.447014, 0), Vector(3.871241, -5.508995, 0), Vector(4.258358, -5.550525, 0), Vector(4.522906, -5.554119, 0), Vector(4.657512, -5.555948, 0)], [4, 1, 1, 1, 1, 1, 1, 1, 1, 1, 1, 1, 1, 1, 1, 1, 4], [0, 0.000310925, 0.000612026, 0.000906805, 0.001200807, 0.001495234, 0.001797074, 0.002111776, 0.002438959, 0.002777454, 0.003114792, 0.003459199, 0.003810722, 0.004171938, 0.004545222, 0.004934894, 0.005338549], False, 3, [1, 1, 1, 1, 1, 1, 1, 1, 1, 1, 1, 1, 1, 1, 1, 1, 1, 1, 1], False), False)
sketch2.addGeometry(Part.BSplineCurve([Vector(3.492559, 0.122454, 0), Vector(3.384108, 0.098038, 0), Vector(3.172256, 0.050342, 0), Vector(2.868607, -0.040899, 0), Vector(2.586449, -0.143606, 0), Vector(2.325624, -0.258336, 0), Vector(2.086535, -0.386091, 0), Vector(1.868785, -0.527643, 0), Vector(1.672684, -0.68106, 0), Vector(1.498799, -0.849123, 0), Vector(1.346001, -1.029088, 0), Vector(1.214328, -1.222829, 0), Vector(1.10305, -1.429649, 0), Vector(1.012278, -1.649849, 0), Vector(0.940733, -1.882904, 0), Vector(0.889396, -2.128435, 0), Vector(0.859554, -2.387352, 0), Vector(0.855952, -2.564045, 0), Vector(0.85411, -2.654445, 0)], [4, 1, 1, 1, 1, 1, 1, 1, 1, 1, 1, 1, 1, 1, 1, 1, 4], [0, 0.000333413, 0.000651299, 0.000950393, 0.00123375, 0.001505414, 0.001762702, 0.002011981, 0.00225117, 0.002486941, 0.002718991, 0.002952611, 0.003190258, 0.003432373, 0.003682959, 0.003941785, 0.004212931], False, 3, [1, 1, 1, 1, 1, 1, 1, 1, 1, 1, 1, 1, 1, 1, 1, 1, 1, 1, 1], False), False)
sketch2.addGeometry(Part.BSplineCurve([Vector(5.85411, 0.571426, 0), Vector(5.677957, 0.527284, 0), Vector(5.313513, 0.43596, 0), Vector(4.738025, 0.346296, 0), Vector(4.12573, 0.248879, 0), Vector(3.707891, 0.165449, 0), Vector(3.492559, 0.122454, 0)], [4, 1, 1, 1, 4], [0, 0.000544512, 0.001126551, 0.001745974, 0.002404624], False, 3, [1, 1, 1, 1, 1, 1, 1], False), False)
sketch2.addGeometry(Part.BSplineCurve([Vector(7.183224, 2.062723, 0), Vector(7.181773, 2.008641, 0), Vector(7.178957, 1.903598, 0), Vector(7.166187, 1.751333, 0), Vector(7.14074, 1.609446, 0), Vector(7.102404, 1.479645, 0), Vector(7.058309, 1.359109, 0), Vector(6.999524, 1.251724, 0), Vector(6.932953, 1.15393, 0), Vector(6.825755, 1.037709, 0), Vector(6.664456, 0.90748, 0), Vector(6.432298, 0.775815, 0), Vector(6.160149, 0.657954, 0), Vector(5.959767, 0.601299, 0), Vector(5.85411, 0.571426, 0)], [4, 1, 1, 1, 1, 1, 1, 1, 1, 1, 1, 1, 4], [0, 0.000162292, 0.000315214, 0.000457976, 0.000593816, 0.000720907, 0.000842138, 0.000960098, 0.001074915, 0.001315246, 0.001578486, 0.00187351, 0.002202583], False, 3, [1, 1, 1, 1, 1, 1, 1, 1, 1, 1, 1, 1, 1, 1, 1], False), False)
sketch2.addGeometry(Part.BSplineCurve([Vector(4.570486, 3.811141, 0), Vector(4.670732, 3.809517, 0), Vector(4.865534, 3.806363, 0), Vector(5.149637, 3.784971, 0), Vector(5.41639, 3.747262, 0), Vector(5.666604, 3.696879, 0), Vector(5.89951, 3.629463, 0), Vector(6.115144, 3.546558, 0), Vector(6.314041, 3.449763, 0), Vector(6.494965, 3.33861, 0), Vector(6.656977, 3.215543, 0), Vector(6.795894, 3.079203, 0), Vector(6.917238, 2.936518, 0), Vector(7.014245, 2.780992, 0), Vector(7.090515, 2.615554, 0), Vector(7.143035, 2.439671, 0), Vector(7.17896, 2.254715, 0), Vector(7.181785, 2.12751, 0), Vector(7.183224, 2.062723, 0)], [4, 1, 1, 1, 1, 1, 1, 1, 1, 1, 1, 1, 1, 1, 1, 1, 4], [0, 0.000300737, 0.000584405, 0.000854046, 0.001108505, 0.001349486, 0.001580522, 0.001800775, 0.002012109, 0.002216632, 0.002409652, 0.002595022, 0.00277721, 0.002957758, 0.003139817, 0.003326804, 0.003520886], False, 3, [1, 1, 1, 1, 1, 1, 1, 1, 1, 1, 1, 1, 1, 1, 1, 1, 1, 1, 1], False), False)
sketch2.addGeometry(Part.BSplineCurve([Vector(0.949046, 2.545318, 0), Vector(1.078392, 2.643624, 0), Vector(1.338461, 2.841282, 0), Vector(1.76597, 3.090647, 0), Vector(2.219742, 3.309984, 0), Vector(2.698234, 3.487699, 0), Vector(3.181833, 3.631902, 0), Vector(3.658469, 3.731122, 0), Vector(4.118834, 3.800314, 0), Vector(4.421909, 3.807579, 0), Vector(4.570486, 3.811141, 0)], [4, 1, 1, 1, 1, 1, 1, 1, 4], [0, 0.000486993, 0.000979175, 0.001481646, 0.001997405, 0.00250872, 0.002994003, 0.003457208, 0.003902663], False, 3, [1, 1, 1, 1, 1, 1, 1, 1, 1, 1, 1], False), False)
sketch2.addGeometry(Part.LineSegment(Vector(0.949046, 2.545318, 0), Vector(0.85411, 2.545318, 0)), False)
sketch2.addGeometry(Part.LineSegment(Vector(0.85411, 2.545318, 0), Vector(0.85411, 4.171109, 0)), False)
sketch2.addGeometry(Part.BSplineCurve([Vector(4.560597, 4.950381, 0), Vector(4.384493, 4.948424, 0), Vector(4.04109, 4.944606, 0), Vector(3.539384, 4.905631, 0), Vector(3.065122, 4.845729, 0), Vector(2.613257, 4.759856, 0), Vector(2.174434, 4.645931, 0), Vector(1.736533, 4.511242, 0), Vector(1.293342, 4.356084, 0), Vector(1.001838, 4.233322, 0), Vector(0.85411, 4.171109, 0)], [4, 1, 1, 1, 1, 1, 1, 1, 4], [0, 0.000528219, 0.001030023, 0.00150865, 0.00196172, 0.002408806, 0.002868024, 0.003335943, 0.003816723], False, 3, [1, 1, 1, 1, 1, 1, 1, 1, 1, 1, 1], False), False)
sketch2.addGeometry(Part.BSplineCurve([Vector(7.539236, 4.024748, 0), Vector(7.446819, 4.095029, 0), Vector(7.261112, 4.236253, 0), Vector(6.957031, 4.419153, 0), Vector(6.630565, 4.575886, 0), Vector(6.28122, 4.713176, 0), Vector(5.901197, 4.820362, 0), Vector(5.4868, 4.896374, 0), Vector(5.035625, 4.941646, 0), Vector(4.722889, 4.947397, 0), Vector(4.560597, 4.950381, 0)], [4, 1, 1, 1, 1, 1, 1, 1, 4], [0, 0.000348124, 0.000699536, 0.001062216, 0.001433551, 0.001824225, 0.002244731, 0.002696001, 0.003182809], False, 3, [1, 1, 1, 1, 1, 1, 1, 1, 1, 1, 1], False), False)
sketch2.addConstraint(Sketcher.Constraint("Block", 0))
sketch2.addConstraint(Sketcher.Constraint("Block", 1))
sketch2.addConstraint(Sketcher.Constraint("Block", 3))
sketch2.addConstraint(Sketcher.Constraint("Block", 4))
sketch2.addConstraint(Sketcher.Constraint("Block", 5))
sketch2.addConstraint(Sketcher.Constraint("Block", 6))
sketch2.addConstraint(Sketcher.Constraint("Block", 9))
sketch2.addConstraint(Sketcher.Constraint("Block", 10))
sketch2.addConstraint(Sketcher.Constraint("Block", 11))
sketch2.addConstraint(Sketcher.Constraint("Block", 12))
sketch2.addConstraint(Sketcher.Constraint("Block", 16))
sketch2.addConstraint(Sketcher.Constraint("Block", 17))
sketch2.addConstraint(Sketcher.Constraint("Block", 18))
sketch2.addConstraint(Sketcher.Constraint("Block", 19))
sketch2.addConstraint(Sketcher.Constraint("Block", 20))
sketch2.addConstraint(Sketcher.Constraint("Block", 23))
sketch2.addConstraint(Sketcher.Constraint("Block", 24))
sketch2.addConstraint(Sketcher.Constraint("Block", 25))
sketch2.addConstraint(Sketcher.Constraint("Block", 26))
sketch2.addConstraint(Sketcher.Constraint("Block", 27))
sketch2.addConstraint(Sketcher.Constraint("Block", 28))
sketch2.addConstraint(Sketcher.Constraint("Block", 29))
sketch2.addConstraint(Sketcher.Constraint("Block", 30))
sketch2.addConstraint(Sketcher.Constraint("Block", 31))
sketch2.addConstraint(Sketcher.Constraint("Block", 34))
sketch2.addConstraint(Sketcher.Constraint("Block", 35))
sketch2.addConstraint(Sketcher.Constraint("Block", 36))
sketch2.addConstraint(Sketcher.Constraint("Block", 37))
sketch2.addConstraint(Sketcher.Constraint("Block", 38))
sketch2.addConstraint(Sketcher.Constraint("Block", 39))
sketch2.addConstraint(Sketcher.Constraint("Block", 40))
sketch2.addConstraint(Sketcher.Constraint("Block", 43))
sketch2.addConstraint(Sketcher.Constraint("Block", 44))
sketch2.addConstraint(Sketcher.Constraint("Coincident", 1, 1, 2, 1))
sketch2.addConstraint(Sketcher.Constraint("Coincident", 2, 2, 3, 2))
sketch2.addConstraint(Sketcher.Constraint("Coincident", 6, 1, 7, 1))
sketch2.addConstraint(Sketcher.Constraint("Coincident", 7, 2, 8, 1))
sketch2.addConstraint(Sketcher.Constraint("Coincident", 8, 2, 9, 2))
sketch2.addConstraint(Sketcher.Constraint("Coincident", 12, 1, 13, 1))
sketch2.addConstraint(Sketcher.Constraint("Coincident", 13, 2, 14, 1))
sketch2.addConstraint(Sketcher.Constraint("Coincident", 14, 2, 15, 1))
sketch2.addConstraint(Sketcher.Constraint("Coincident", 15, 2, 16, 2))
sketch2.addConstraint(Sketcher.Constraint("Coincident", 20, 1, 21, 1))
sketch2.addConstraint(Sketcher.Constraint("Coincident", 21, 2, 22, 1))
sketch2.addConstraint(Sketcher.Constraint("Coincident", 22, 2, 23, 2))
sketch2.addConstraint(Sketcher.Constraint("Coincident", 31, 1, 32, 1))
sketch2.addConstraint(Sketcher.Constraint("Coincident", 32, 2, 33, 1))
sketch2.addConstraint(Sketcher.Constraint("Coincident", 33, 2, 34, 2))
sketch2.addConstraint(Sketcher.Constraint("Coincident", 40, 1, 41, 1))
sketch2.addConstraint(Sketcher.Constraint("Coincident", 41, 2, 42, 1))
sketch2.addConstraint(Sketcher.Constraint("Coincident", 42, 2, 43, 2))
sketch2.addConstraint(Sketcher.Constraint("Vertical", 7))
sketch2.addConstraint(Sketcher.Constraint("Horizontal", 8))
sketch2.addConstraint(Sketcher.Constraint("Horizontal", 13))
sketch2.addConstraint(Sketcher.Constraint("Vertical", 14))
sketch2.addConstraint(Sketcher.Constraint("Horizontal", 15))
sketch2.addConstraint(Sketcher.Constraint("Horizontal", 21))
sketch2.addConstraint(Sketcher.Constraint("Vertical", 22))
sketch2.addConstraint(Sketcher.Constraint("Horizontal", 32))
sketch2.addConstraint(Sketcher.Constraint("Vertical", 33))
sketch2.addConstraint(Sketcher.Constraint("Horizontal", 41))
sketch2.addConstraint(Sketcher.Constraint("Vertical", 42))
sketch2.addConstraint(Sketcher.Constraint("DistanceX", 13, 2, 13, 1, Q("0.460839 mm")))
pocket1 = doc.addObject("PartDesign::Pocket", "Pocket")
body.addObject(pocket1)
pocket1.Profile = sketch2
pocket1.setExpression("Length", "Params.pocket1_length")
pocket1.Reversed = True

doc.recompute()
